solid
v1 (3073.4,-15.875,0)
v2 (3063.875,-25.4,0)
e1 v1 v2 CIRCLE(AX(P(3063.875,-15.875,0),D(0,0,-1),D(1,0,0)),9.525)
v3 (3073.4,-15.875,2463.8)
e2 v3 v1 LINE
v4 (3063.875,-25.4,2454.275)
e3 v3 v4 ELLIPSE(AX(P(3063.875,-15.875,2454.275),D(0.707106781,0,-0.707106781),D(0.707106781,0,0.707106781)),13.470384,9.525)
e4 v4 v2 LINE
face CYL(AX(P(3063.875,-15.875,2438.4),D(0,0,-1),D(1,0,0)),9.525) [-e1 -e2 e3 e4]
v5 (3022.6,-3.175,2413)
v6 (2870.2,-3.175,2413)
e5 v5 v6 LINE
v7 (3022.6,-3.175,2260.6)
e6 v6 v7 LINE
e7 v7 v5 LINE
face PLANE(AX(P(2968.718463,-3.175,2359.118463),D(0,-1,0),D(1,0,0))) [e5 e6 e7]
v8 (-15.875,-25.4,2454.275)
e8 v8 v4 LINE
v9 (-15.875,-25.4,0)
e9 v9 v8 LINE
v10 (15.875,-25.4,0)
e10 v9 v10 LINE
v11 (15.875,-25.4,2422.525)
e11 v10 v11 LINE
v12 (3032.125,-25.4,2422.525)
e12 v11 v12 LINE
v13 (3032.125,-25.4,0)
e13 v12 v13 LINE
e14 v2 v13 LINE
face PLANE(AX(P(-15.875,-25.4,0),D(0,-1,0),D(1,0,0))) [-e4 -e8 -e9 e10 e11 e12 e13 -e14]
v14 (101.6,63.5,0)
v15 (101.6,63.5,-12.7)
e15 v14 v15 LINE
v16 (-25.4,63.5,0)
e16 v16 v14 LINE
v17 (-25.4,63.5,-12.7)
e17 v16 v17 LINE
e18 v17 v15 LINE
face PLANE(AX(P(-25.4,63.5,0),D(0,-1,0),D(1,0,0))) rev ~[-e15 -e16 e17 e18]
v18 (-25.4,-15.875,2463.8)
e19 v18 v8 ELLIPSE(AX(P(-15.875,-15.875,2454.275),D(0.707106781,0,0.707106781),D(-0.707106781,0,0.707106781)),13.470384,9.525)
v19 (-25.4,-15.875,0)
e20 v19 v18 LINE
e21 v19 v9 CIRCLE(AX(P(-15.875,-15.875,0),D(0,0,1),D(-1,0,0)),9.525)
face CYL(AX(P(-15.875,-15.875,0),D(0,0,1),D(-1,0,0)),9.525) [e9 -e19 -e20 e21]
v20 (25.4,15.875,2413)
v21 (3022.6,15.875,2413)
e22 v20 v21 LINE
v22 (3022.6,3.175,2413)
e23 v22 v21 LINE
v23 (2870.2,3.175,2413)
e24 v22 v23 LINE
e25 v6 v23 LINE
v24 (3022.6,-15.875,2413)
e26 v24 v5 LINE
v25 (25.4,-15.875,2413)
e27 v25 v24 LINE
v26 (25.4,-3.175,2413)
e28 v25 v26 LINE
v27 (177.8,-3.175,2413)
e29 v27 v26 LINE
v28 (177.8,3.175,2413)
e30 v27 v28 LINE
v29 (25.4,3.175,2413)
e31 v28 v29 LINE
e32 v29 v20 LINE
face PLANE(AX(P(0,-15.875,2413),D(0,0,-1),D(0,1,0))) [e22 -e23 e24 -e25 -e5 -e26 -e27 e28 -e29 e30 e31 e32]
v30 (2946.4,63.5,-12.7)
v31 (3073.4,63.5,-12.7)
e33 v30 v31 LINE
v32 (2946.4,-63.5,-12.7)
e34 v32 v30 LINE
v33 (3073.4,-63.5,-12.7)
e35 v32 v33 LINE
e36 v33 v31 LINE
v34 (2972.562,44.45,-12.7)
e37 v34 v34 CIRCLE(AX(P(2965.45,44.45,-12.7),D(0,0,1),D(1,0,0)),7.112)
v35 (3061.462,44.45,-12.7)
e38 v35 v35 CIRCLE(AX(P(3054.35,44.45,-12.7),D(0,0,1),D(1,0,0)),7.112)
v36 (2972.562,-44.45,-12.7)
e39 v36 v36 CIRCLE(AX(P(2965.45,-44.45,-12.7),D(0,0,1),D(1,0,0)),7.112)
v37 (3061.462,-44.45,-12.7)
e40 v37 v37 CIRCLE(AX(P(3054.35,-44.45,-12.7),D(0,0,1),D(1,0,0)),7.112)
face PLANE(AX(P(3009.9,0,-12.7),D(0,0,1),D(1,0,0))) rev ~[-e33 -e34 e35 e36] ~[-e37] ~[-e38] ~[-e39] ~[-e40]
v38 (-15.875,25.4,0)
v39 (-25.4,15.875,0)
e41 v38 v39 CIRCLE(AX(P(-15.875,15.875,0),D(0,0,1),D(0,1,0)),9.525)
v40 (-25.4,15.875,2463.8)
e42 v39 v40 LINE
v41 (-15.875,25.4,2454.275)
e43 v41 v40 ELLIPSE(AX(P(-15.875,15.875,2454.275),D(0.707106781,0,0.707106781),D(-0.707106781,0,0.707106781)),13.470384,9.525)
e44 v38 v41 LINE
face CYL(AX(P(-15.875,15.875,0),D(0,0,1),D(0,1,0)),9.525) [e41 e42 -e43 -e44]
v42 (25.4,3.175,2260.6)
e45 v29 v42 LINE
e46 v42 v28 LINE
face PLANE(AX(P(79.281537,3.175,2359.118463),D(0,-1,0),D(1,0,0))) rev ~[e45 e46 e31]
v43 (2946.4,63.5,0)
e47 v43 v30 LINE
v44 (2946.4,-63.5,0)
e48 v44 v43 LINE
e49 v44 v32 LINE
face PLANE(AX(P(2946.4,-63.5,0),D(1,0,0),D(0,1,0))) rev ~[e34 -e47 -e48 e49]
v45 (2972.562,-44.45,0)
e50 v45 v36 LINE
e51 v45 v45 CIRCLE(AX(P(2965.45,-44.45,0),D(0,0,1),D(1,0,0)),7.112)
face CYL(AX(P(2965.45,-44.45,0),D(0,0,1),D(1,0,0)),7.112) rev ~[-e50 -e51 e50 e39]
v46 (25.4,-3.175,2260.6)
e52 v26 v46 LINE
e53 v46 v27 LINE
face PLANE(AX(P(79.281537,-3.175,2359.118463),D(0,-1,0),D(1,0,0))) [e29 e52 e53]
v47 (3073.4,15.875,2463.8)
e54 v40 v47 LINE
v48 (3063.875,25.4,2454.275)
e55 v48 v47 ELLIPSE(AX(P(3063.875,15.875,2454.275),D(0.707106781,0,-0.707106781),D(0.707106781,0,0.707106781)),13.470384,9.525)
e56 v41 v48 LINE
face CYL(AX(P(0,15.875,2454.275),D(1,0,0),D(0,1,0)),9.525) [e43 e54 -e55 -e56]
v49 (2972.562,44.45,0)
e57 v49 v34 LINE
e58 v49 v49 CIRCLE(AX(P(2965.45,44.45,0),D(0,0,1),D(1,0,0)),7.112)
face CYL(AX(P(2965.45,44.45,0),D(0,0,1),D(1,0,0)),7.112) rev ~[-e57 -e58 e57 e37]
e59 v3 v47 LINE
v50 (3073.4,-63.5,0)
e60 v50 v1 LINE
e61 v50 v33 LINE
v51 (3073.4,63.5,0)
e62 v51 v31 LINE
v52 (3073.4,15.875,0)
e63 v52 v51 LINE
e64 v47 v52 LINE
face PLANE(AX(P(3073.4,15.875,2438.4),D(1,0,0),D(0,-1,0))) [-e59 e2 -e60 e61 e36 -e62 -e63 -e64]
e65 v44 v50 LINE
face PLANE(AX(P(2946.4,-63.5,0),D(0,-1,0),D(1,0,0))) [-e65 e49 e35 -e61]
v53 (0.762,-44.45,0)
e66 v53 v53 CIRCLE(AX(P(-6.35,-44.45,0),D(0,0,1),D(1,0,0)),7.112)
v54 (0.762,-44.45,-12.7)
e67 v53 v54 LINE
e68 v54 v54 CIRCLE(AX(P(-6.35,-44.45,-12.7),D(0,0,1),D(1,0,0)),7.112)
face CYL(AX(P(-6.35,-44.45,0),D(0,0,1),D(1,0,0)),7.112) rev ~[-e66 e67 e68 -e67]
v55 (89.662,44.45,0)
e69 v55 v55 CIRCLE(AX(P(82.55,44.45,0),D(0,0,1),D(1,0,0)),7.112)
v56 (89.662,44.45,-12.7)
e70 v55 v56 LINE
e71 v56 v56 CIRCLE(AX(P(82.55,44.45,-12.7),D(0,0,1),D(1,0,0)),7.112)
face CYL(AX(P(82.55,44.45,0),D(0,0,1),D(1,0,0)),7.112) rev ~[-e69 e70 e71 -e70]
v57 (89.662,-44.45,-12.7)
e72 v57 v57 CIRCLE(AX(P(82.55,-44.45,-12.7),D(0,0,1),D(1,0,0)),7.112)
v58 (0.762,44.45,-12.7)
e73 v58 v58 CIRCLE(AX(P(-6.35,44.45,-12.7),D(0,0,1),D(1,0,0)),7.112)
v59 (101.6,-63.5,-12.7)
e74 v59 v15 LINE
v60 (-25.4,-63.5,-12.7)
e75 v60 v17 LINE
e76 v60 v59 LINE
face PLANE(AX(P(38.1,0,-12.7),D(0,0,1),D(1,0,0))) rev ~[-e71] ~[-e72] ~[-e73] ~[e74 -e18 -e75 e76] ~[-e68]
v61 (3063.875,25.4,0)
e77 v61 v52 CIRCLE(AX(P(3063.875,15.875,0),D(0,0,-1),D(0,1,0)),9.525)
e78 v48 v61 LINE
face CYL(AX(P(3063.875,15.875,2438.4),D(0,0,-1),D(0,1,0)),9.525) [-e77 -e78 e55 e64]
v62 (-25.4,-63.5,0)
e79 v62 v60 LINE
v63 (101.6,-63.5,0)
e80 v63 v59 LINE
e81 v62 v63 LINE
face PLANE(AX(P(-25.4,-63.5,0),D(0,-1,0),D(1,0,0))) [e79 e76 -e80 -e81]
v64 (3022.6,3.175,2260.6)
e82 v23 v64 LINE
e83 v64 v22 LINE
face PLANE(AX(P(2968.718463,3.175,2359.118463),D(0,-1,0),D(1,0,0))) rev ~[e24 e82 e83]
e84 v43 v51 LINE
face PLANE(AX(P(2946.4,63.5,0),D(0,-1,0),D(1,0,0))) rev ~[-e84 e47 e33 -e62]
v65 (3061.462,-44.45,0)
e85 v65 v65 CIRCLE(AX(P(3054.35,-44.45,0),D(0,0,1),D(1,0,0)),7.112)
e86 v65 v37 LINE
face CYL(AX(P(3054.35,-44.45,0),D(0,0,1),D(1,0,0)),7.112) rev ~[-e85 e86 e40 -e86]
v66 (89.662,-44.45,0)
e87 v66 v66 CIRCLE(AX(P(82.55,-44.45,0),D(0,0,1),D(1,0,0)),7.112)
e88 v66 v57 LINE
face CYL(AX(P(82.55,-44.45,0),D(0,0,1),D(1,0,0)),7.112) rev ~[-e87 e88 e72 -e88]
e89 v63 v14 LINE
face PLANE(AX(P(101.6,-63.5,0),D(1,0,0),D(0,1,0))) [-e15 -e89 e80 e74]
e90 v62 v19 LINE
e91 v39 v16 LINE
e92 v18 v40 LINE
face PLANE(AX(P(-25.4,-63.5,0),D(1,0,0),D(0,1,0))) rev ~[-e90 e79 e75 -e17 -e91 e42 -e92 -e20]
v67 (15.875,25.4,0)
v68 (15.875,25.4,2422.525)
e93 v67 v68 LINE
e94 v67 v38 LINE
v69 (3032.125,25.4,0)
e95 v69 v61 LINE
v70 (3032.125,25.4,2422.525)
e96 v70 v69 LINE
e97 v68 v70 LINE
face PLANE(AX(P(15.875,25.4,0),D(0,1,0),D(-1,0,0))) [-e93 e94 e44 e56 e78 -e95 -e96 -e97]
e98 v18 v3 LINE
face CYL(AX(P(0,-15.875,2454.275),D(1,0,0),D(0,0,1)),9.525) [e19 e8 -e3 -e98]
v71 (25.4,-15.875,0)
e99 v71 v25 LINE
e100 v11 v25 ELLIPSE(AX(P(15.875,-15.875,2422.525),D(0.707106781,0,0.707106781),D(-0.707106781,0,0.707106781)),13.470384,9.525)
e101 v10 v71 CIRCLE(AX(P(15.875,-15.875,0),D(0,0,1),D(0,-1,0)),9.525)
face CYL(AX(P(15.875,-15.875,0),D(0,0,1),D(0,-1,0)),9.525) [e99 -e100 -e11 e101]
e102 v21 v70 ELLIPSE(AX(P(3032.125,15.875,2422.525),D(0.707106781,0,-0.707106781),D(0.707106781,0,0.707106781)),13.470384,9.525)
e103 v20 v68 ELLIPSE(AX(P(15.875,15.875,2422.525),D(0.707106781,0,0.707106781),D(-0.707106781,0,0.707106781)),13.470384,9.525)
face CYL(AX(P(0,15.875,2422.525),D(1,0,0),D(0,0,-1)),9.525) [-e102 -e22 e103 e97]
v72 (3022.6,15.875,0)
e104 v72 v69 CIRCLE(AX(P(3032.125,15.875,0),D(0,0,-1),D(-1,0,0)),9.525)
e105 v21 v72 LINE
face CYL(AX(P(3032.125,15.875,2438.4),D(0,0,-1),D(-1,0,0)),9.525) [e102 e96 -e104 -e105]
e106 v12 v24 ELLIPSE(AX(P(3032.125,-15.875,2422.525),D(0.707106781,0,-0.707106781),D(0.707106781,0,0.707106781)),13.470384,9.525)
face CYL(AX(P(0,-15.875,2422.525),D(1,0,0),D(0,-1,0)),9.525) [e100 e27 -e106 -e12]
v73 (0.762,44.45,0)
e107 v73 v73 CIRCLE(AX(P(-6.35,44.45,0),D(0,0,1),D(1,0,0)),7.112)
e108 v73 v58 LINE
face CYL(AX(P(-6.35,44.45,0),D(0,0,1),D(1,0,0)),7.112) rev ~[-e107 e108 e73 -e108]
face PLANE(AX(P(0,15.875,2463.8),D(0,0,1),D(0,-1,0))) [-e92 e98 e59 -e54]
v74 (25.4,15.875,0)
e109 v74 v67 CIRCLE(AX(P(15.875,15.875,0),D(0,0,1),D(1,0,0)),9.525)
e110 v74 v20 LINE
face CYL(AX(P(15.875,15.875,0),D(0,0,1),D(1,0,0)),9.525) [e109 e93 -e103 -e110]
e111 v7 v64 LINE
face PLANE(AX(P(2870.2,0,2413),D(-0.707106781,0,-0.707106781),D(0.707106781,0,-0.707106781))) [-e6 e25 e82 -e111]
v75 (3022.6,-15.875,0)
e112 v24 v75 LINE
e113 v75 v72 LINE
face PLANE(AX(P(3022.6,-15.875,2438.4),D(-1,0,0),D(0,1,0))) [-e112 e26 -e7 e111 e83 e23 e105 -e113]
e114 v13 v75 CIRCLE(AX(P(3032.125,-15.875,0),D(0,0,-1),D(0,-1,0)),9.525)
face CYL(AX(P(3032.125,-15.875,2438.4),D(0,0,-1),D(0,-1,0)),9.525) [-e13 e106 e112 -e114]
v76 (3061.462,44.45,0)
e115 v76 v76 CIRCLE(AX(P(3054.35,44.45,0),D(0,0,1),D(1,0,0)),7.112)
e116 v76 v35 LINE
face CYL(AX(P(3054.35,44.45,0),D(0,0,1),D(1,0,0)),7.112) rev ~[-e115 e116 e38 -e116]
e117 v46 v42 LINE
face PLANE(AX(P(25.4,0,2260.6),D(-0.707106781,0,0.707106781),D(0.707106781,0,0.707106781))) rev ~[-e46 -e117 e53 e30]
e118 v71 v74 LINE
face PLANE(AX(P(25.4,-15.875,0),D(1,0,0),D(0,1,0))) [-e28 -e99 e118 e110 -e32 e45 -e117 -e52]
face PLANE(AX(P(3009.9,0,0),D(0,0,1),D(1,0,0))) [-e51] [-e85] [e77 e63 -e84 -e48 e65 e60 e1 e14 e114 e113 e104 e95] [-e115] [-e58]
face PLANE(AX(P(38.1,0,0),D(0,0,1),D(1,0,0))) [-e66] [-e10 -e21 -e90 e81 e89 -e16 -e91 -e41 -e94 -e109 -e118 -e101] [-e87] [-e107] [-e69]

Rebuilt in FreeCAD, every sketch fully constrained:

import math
import FreeCAD as App
import Part
import Sketcher
Q = App.Units.Quantity

doc = App.newDocument("Part")
body = doc.addObject("PartDesign::Body", "Body")

sketch1 = body.newObject("Sketcher::SketchObject", "Sketch")
sketch1.AttachmentSupport = (doc.getObject("XY_Plane"), [""])
sketch1.MapMode = "FlatFace"
sketch1.addGeometry([
    Part.LineSegment(App.Vector(15.875, 25.4, 0), App.Vector(-15.875, 25.4, 0)),
    Part.ArcOfCircle(Part.Circle(App.Vector(-15.875, 15.875, 0), App.Vector(0, 0, 1), 9.525), math.radians(90), math.radians(180)),
    Part.LineSegment(App.Vector(-25.4, 15.875, 0), App.Vector(-25.4, -15.875, 0)),
    Part.ArcOfCircle(Part.Circle(App.Vector(-15.875, -15.875, 0), App.Vector(0, 0, 1), 9.525), math.radians(180), math.radians(270)),
    Part.LineSegment(App.Vector(-15.875, -25.4, 0), App.Vector(15.875, -25.4, 0)),
    Part.ArcOfCircle(Part.Circle(App.Vector(15.875, -15.875, 0), App.Vector(0, 0, 1), 9.525), math.radians(-90), math.radians(0)),
    Part.LineSegment(App.Vector(25.4, -15.875, 0), App.Vector(25.4, 15.875, 0)),
    Part.ArcOfCircle(Part.Circle(App.Vector(15.875, 15.875, 0), App.Vector(0, 0, 1), 9.525), math.radians(0), math.radians(90)),
], False)
sketch1.addConstraint([
    Sketcher.Constraint("Tangent", 0, 2, 1, 1),
    Sketcher.Constraint("Tangent", 1, 2, 2, 1),
    Sketcher.Constraint("Tangent", 2, 2, 3, 1),
    Sketcher.Constraint("Tangent", 3, 2, 4, 1),
    Sketcher.Constraint("Tangent", 4, 2, 5, 1),
    Sketcher.Constraint("Tangent", 5, 2, 6, 1),
    Sketcher.Constraint("Tangent", 6, 2, 7, 1),
    Sketcher.Constraint("Tangent", 7, 2, 0, 1),
    Sketcher.Constraint("Horizontal", 0),
    Sketcher.Constraint("Vertical", 2),
    Sketcher.Constraint("Horizontal", 4),
    Sketcher.Constraint("Vertical", 6),
    Sketcher.Constraint("Equal", 1, 3),
    Sketcher.Constraint("Equal", 3, 5),
    Sketcher.Constraint("Equal", 5, 7),
    Sketcher.Constraint("Symmetric", 1, 3, 5, 3, -1, 1),
    Sketcher.Constraint("Equal", 4, 2),
    Sketcher.Constraint("DistanceY", -1, 1, 0, 2, Q("1 in")),
    Sketcher.Constraint("Radius", 1, Q("0.375 in")),
])

sketch2 = body.newObject("Sketcher::SketchObject", "Sketch001")
sketch2.AttachmentSupport = (doc.getObject("XZ_Plane"), [""])
sketch2.MapMode = "FlatFace"
sketch2.addGeometry([
    Part.LineSegment(App.Vector(0, 0, 0), App.Vector(0, 2438.4, 0)),
    Part.LineSegment(App.Vector(0, 2438.4, 0), App.Vector(3048, 2438.4, 0)),
    Part.LineSegment(App.Vector(3048, 2438.4, 0), App.Vector(3048, 0, 0)),
], False)
sketch2.addConstraint([
    Sketcher.Constraint("Coincident", 0, 2, 1, 1),
    Sketcher.Constraint("Coincident", 1, 2, 2, 1),
    Sketcher.Constraint("Vertical", 0),
    Sketcher.Constraint("Horizontal", 1),
    Sketcher.Constraint("Vertical", 2),
    Sketcher.Constraint("Coincident", 0, 1, -1, 1),
    Sketcher.Constraint("PointOnObject", 2, 2, -1),
    Sketcher.Constraint("DistanceX", 1, 1, 1, 2, Q("120 in")),
    Sketcher.Constraint("DistanceY", 0, 1, 0, 2, Q("96 in")),
])
doc.recompute()

additivepipe = body.newObject("PartDesign::AdditivePipe", "AdditivePipe")
additivepipe.Profile = sketch1
additivepipe.Spine = (sketch2, ["Edge1", "Edge2", "Edge3"])
additivepipe.Transition = "Right corner"

sketch3 = body.newObject("Sketcher::SketchObject", "Sketch002")
sketch3.AttachmentSupport = (doc.getObject("XY_Plane"), [""])
sketch3.MapMode = "FlatFace"
sketch3.addGeometry([
    Part.LineSegment(App.Vector(-25.4, 63.5, 0), App.Vector(-25.4, -63.5, 0)),
    Part.LineSegment(App.Vector(-25.4, -63.5, 0), App.Vector(101.6, -63.5, 0)),
    Part.LineSegment(App.Vector(101.6, -63.5, 0), App.Vector(101.6, 63.5, 0)),
    Part.LineSegment(App.Vector(101.6, 63.5, 0), App.Vector(-25.4, 63.5, 0)),
    Part.Circle(App.Vector(-6.35, -44.45, 0), App.Vector(0, 0, 1), 7.112),
    Part.Circle(App.Vector(82.55, -44.45, 0), App.Vector(0, 0, 1), 7.112),
    Part.Circle(App.Vector(-6.35, 44.45, 0), App.Vector(0, 0, 1), 7.112),
    Part.Circle(App.Vector(82.55, 44.45, 0), App.Vector(0, 0, 1), 7.112),
    Part.LineSegment(App.Vector(2946.4, 63.5, 0), App.Vector(2946.4, -63.5, 0)),
    Part.LineSegment(App.Vector(2946.4, -63.5, 0), App.Vector(3073.4, -63.5, 0)),
    Part.LineSegment(App.Vector(3073.4, -63.5, 0), App.Vector(3073.4, 63.5, 0)),
    Part.LineSegment(App.Vector(3073.4, 63.5, 0), App.Vector(2946.4, 63.5, 0)),
    Part.Circle(App.Vector(2965.45, -44.45, 0), App.Vector(0, 0, 1), 7.112),
    Part.Circle(App.Vector(3054.35, -44.45, 0), App.Vector(0, 0, 1), 7.112),
    Part.Circle(App.Vector(2965.45, 44.45, 0), App.Vector(0, 0, 1), 7.112),
    Part.Circle(App.Vector(3054.35, 44.45, 0), App.Vector(0, 0, 1), 7.112),
], False)
sketch3.addConstraint([
    Sketcher.Constraint("Coincident", 0, 2, 1, 1),
    Sketcher.Constraint("Coincident", 1, 2, 2, 1),
    Sketcher.Constraint("Coincident", 2, 2, 3, 1),
    Sketcher.Constraint("Coincident", 3, 2, 0, 1),
    Sketcher.Constraint("Coincident", 8, 2, 9, 1),
    Sketcher.Constraint("Coincident", 9, 2, 10, 1),
    Sketcher.Constraint("Coincident", 10, 2, 11, 1),
    Sketcher.Constraint("Coincident", 11, 2, 8, 1),
    Sketcher.Constraint("Vertical", 0),
    Sketcher.Constraint("Horizontal", 1),
    Sketcher.Constraint("Vertical", 2),
    Sketcher.Constraint("Horizontal", 3),
    Sketcher.Constraint("Vertical", 8),
    Sketcher.Constraint("Horizontal", 9),
    Sketcher.Constraint("Vertical", 10),
    Sketcher.Constraint("Horizontal", 11),
    Sketcher.Constraint("Equal", 4, 5),
    Sketcher.Constraint("Equal", 5, 6),
    Sketcher.Constraint("Equal", 6, 7),
    Sketcher.Constraint("Equal", 7, 12),
    Sketcher.Constraint("Equal", 12, 13),
    Sketcher.Constraint("Equal", 13, 14),
    Sketcher.Constraint("Equal", 14, 15),
    Sketcher.Constraint("Symmetric", 4, 3, 6, 3, -1),
    Sketcher.Constraint("Symmetric", 5, 3, 7, 3, -1),
    Sketcher.Constraint("Symmetric", 12, 3, 14, 3, -1),
    Sketcher.Constraint("Symmetric", 13, 3, 15, 3, -1),
    Sketcher.Constraint("Horizontal", 4, 3, 5, 3),
    Sketcher.Constraint("Horizontal", 5, 3, 12, 3),
    Sketcher.Constraint("Horizontal", 12, 3, 13, 3),
    Sketcher.Constraint("Horizontal", 1, 2, 8, 2),
    Sketcher.Constraint("Horizontal", 3, 2, 10, 2),
    Sketcher.Constraint("Equal", 3, 9),
    Sketcher.Constraint("Equal", 11, 0),
    Sketcher.Constraint("Diameter", 4, Q("0.56 in")),
    Sketcher.Constraint("DistanceX", 1, 1, 1, 2, Q("5 in")),
    Sketcher.Constraint("DistanceX", 0, 2, -1, 1, Q("1 in")),
    Sketcher.Constraint("DistanceX", -1, 1, 8, 2, Q("116 in")),
    Sketcher.Constraint("DistanceX", 4, 3, 12, 3, Q("117 in")),
    Sketcher.Constraint("DistanceX", 5, 3, 13, 3, Q("117 in")),
    Sketcher.Constraint("DistanceY", 0, 2, -1, 1, Q("2.5 in")),
    Sketcher.Constraint("DistanceX", 4, 3, 5, 3, Q("3.5 in")),
    Sketcher.Constraint("DistanceY", 4, 3, 6, 3, Q("3.5 in")),
    Sketcher.Constraint("DistanceX", 4, 3, -1, 1, Q("0.25 in")),
])
pad1 = body.newObject("PartDesign::Pad", "Pad")
pad1.Profile = sketch3
pad1.Length = Q("0.5 in")
pad1.Reversed = True

sketch4 = body.newObject("Sketcher::SketchObject", "Sketch003")
sketch4.AttachmentSupport = (doc.getObject("XZ_Plane"), [""])
sketch4.MapMode = "FlatFace"
sketch4.addGeometry([
    Part.LineSegment(App.Vector(177.8, 2413, 0), App.Vector(25.4, 2413, 0)),
    Part.LineSegment(App.Vector(25.4, 2413, 0), App.Vector(25.4, 2260.6, 0)),
    Part.LineSegment(App.Vector(25.4, 2260.6, 0), App.Vector(177.8, 2413, 0)),
    Part.LineSegment(App.Vector(3022.6, 2260.6, 0), App.Vector(3022.6, 2413, 0)),
    Part.LineSegment(App.Vector(3022.6, 2413, 0), App.Vector(2870.2, 2413, 0)),
    Part.LineSegment(App.Vector(2870.2, 2413, 0), App.Vector(3022.6, 2260.6, 0)),
], False)
sketch4.addConstraint([
    Sketcher.Constraint("Coincident", 0, 2, 1, 1),
    Sketcher.Constraint("Coincident", 1, 2, 2, 1),
    Sketcher.Constraint("Coincident", 2, 2, 0, 1),
    Sketcher.Constraint("Coincident", 3, 2, 4, 1),
    Sketcher.Constraint("Coincident", 4, 2, 5, 1),
    Sketcher.Constraint("Coincident", 5, 2, 3, 1),
    Sketcher.Constraint("Horizontal", 0),
    Sketcher.Constraint("Vertical", 1),
    Sketcher.Constraint("Vertical", 3),
    Sketcher.Constraint("Horizontal", 4),
    Sketcher.Constraint("Perpendicular", 2, 5),
    Sketcher.Constraint("Horizontal", 2, 2, 3, 2),
    Sketcher.Constraint("Horizontal", 1, 2, 5, 2),
    Sketcher.Constraint("Equal", 0, 4),
    Sketcher.Constraint("DistanceX", 0, 2, 0, 1, Q("6 in")),
    Sketcher.Constraint("DistanceX", -1, 1, 0, 2, Q("1 in")),
    Sketcher.Constraint("DistanceY", -1, 1, 0, 2, Q("95 in")),
    Sketcher.Constraint("DistanceX", -1, 1, 3, 2, Q("119 in")),
])
pad2 = body.newObject("PartDesign::Pad", "Pad001")
pad2.Profile = sketch4
pad2.Length = Q("0.25 in")
pad2.Midplane = True

doc.recompute()
